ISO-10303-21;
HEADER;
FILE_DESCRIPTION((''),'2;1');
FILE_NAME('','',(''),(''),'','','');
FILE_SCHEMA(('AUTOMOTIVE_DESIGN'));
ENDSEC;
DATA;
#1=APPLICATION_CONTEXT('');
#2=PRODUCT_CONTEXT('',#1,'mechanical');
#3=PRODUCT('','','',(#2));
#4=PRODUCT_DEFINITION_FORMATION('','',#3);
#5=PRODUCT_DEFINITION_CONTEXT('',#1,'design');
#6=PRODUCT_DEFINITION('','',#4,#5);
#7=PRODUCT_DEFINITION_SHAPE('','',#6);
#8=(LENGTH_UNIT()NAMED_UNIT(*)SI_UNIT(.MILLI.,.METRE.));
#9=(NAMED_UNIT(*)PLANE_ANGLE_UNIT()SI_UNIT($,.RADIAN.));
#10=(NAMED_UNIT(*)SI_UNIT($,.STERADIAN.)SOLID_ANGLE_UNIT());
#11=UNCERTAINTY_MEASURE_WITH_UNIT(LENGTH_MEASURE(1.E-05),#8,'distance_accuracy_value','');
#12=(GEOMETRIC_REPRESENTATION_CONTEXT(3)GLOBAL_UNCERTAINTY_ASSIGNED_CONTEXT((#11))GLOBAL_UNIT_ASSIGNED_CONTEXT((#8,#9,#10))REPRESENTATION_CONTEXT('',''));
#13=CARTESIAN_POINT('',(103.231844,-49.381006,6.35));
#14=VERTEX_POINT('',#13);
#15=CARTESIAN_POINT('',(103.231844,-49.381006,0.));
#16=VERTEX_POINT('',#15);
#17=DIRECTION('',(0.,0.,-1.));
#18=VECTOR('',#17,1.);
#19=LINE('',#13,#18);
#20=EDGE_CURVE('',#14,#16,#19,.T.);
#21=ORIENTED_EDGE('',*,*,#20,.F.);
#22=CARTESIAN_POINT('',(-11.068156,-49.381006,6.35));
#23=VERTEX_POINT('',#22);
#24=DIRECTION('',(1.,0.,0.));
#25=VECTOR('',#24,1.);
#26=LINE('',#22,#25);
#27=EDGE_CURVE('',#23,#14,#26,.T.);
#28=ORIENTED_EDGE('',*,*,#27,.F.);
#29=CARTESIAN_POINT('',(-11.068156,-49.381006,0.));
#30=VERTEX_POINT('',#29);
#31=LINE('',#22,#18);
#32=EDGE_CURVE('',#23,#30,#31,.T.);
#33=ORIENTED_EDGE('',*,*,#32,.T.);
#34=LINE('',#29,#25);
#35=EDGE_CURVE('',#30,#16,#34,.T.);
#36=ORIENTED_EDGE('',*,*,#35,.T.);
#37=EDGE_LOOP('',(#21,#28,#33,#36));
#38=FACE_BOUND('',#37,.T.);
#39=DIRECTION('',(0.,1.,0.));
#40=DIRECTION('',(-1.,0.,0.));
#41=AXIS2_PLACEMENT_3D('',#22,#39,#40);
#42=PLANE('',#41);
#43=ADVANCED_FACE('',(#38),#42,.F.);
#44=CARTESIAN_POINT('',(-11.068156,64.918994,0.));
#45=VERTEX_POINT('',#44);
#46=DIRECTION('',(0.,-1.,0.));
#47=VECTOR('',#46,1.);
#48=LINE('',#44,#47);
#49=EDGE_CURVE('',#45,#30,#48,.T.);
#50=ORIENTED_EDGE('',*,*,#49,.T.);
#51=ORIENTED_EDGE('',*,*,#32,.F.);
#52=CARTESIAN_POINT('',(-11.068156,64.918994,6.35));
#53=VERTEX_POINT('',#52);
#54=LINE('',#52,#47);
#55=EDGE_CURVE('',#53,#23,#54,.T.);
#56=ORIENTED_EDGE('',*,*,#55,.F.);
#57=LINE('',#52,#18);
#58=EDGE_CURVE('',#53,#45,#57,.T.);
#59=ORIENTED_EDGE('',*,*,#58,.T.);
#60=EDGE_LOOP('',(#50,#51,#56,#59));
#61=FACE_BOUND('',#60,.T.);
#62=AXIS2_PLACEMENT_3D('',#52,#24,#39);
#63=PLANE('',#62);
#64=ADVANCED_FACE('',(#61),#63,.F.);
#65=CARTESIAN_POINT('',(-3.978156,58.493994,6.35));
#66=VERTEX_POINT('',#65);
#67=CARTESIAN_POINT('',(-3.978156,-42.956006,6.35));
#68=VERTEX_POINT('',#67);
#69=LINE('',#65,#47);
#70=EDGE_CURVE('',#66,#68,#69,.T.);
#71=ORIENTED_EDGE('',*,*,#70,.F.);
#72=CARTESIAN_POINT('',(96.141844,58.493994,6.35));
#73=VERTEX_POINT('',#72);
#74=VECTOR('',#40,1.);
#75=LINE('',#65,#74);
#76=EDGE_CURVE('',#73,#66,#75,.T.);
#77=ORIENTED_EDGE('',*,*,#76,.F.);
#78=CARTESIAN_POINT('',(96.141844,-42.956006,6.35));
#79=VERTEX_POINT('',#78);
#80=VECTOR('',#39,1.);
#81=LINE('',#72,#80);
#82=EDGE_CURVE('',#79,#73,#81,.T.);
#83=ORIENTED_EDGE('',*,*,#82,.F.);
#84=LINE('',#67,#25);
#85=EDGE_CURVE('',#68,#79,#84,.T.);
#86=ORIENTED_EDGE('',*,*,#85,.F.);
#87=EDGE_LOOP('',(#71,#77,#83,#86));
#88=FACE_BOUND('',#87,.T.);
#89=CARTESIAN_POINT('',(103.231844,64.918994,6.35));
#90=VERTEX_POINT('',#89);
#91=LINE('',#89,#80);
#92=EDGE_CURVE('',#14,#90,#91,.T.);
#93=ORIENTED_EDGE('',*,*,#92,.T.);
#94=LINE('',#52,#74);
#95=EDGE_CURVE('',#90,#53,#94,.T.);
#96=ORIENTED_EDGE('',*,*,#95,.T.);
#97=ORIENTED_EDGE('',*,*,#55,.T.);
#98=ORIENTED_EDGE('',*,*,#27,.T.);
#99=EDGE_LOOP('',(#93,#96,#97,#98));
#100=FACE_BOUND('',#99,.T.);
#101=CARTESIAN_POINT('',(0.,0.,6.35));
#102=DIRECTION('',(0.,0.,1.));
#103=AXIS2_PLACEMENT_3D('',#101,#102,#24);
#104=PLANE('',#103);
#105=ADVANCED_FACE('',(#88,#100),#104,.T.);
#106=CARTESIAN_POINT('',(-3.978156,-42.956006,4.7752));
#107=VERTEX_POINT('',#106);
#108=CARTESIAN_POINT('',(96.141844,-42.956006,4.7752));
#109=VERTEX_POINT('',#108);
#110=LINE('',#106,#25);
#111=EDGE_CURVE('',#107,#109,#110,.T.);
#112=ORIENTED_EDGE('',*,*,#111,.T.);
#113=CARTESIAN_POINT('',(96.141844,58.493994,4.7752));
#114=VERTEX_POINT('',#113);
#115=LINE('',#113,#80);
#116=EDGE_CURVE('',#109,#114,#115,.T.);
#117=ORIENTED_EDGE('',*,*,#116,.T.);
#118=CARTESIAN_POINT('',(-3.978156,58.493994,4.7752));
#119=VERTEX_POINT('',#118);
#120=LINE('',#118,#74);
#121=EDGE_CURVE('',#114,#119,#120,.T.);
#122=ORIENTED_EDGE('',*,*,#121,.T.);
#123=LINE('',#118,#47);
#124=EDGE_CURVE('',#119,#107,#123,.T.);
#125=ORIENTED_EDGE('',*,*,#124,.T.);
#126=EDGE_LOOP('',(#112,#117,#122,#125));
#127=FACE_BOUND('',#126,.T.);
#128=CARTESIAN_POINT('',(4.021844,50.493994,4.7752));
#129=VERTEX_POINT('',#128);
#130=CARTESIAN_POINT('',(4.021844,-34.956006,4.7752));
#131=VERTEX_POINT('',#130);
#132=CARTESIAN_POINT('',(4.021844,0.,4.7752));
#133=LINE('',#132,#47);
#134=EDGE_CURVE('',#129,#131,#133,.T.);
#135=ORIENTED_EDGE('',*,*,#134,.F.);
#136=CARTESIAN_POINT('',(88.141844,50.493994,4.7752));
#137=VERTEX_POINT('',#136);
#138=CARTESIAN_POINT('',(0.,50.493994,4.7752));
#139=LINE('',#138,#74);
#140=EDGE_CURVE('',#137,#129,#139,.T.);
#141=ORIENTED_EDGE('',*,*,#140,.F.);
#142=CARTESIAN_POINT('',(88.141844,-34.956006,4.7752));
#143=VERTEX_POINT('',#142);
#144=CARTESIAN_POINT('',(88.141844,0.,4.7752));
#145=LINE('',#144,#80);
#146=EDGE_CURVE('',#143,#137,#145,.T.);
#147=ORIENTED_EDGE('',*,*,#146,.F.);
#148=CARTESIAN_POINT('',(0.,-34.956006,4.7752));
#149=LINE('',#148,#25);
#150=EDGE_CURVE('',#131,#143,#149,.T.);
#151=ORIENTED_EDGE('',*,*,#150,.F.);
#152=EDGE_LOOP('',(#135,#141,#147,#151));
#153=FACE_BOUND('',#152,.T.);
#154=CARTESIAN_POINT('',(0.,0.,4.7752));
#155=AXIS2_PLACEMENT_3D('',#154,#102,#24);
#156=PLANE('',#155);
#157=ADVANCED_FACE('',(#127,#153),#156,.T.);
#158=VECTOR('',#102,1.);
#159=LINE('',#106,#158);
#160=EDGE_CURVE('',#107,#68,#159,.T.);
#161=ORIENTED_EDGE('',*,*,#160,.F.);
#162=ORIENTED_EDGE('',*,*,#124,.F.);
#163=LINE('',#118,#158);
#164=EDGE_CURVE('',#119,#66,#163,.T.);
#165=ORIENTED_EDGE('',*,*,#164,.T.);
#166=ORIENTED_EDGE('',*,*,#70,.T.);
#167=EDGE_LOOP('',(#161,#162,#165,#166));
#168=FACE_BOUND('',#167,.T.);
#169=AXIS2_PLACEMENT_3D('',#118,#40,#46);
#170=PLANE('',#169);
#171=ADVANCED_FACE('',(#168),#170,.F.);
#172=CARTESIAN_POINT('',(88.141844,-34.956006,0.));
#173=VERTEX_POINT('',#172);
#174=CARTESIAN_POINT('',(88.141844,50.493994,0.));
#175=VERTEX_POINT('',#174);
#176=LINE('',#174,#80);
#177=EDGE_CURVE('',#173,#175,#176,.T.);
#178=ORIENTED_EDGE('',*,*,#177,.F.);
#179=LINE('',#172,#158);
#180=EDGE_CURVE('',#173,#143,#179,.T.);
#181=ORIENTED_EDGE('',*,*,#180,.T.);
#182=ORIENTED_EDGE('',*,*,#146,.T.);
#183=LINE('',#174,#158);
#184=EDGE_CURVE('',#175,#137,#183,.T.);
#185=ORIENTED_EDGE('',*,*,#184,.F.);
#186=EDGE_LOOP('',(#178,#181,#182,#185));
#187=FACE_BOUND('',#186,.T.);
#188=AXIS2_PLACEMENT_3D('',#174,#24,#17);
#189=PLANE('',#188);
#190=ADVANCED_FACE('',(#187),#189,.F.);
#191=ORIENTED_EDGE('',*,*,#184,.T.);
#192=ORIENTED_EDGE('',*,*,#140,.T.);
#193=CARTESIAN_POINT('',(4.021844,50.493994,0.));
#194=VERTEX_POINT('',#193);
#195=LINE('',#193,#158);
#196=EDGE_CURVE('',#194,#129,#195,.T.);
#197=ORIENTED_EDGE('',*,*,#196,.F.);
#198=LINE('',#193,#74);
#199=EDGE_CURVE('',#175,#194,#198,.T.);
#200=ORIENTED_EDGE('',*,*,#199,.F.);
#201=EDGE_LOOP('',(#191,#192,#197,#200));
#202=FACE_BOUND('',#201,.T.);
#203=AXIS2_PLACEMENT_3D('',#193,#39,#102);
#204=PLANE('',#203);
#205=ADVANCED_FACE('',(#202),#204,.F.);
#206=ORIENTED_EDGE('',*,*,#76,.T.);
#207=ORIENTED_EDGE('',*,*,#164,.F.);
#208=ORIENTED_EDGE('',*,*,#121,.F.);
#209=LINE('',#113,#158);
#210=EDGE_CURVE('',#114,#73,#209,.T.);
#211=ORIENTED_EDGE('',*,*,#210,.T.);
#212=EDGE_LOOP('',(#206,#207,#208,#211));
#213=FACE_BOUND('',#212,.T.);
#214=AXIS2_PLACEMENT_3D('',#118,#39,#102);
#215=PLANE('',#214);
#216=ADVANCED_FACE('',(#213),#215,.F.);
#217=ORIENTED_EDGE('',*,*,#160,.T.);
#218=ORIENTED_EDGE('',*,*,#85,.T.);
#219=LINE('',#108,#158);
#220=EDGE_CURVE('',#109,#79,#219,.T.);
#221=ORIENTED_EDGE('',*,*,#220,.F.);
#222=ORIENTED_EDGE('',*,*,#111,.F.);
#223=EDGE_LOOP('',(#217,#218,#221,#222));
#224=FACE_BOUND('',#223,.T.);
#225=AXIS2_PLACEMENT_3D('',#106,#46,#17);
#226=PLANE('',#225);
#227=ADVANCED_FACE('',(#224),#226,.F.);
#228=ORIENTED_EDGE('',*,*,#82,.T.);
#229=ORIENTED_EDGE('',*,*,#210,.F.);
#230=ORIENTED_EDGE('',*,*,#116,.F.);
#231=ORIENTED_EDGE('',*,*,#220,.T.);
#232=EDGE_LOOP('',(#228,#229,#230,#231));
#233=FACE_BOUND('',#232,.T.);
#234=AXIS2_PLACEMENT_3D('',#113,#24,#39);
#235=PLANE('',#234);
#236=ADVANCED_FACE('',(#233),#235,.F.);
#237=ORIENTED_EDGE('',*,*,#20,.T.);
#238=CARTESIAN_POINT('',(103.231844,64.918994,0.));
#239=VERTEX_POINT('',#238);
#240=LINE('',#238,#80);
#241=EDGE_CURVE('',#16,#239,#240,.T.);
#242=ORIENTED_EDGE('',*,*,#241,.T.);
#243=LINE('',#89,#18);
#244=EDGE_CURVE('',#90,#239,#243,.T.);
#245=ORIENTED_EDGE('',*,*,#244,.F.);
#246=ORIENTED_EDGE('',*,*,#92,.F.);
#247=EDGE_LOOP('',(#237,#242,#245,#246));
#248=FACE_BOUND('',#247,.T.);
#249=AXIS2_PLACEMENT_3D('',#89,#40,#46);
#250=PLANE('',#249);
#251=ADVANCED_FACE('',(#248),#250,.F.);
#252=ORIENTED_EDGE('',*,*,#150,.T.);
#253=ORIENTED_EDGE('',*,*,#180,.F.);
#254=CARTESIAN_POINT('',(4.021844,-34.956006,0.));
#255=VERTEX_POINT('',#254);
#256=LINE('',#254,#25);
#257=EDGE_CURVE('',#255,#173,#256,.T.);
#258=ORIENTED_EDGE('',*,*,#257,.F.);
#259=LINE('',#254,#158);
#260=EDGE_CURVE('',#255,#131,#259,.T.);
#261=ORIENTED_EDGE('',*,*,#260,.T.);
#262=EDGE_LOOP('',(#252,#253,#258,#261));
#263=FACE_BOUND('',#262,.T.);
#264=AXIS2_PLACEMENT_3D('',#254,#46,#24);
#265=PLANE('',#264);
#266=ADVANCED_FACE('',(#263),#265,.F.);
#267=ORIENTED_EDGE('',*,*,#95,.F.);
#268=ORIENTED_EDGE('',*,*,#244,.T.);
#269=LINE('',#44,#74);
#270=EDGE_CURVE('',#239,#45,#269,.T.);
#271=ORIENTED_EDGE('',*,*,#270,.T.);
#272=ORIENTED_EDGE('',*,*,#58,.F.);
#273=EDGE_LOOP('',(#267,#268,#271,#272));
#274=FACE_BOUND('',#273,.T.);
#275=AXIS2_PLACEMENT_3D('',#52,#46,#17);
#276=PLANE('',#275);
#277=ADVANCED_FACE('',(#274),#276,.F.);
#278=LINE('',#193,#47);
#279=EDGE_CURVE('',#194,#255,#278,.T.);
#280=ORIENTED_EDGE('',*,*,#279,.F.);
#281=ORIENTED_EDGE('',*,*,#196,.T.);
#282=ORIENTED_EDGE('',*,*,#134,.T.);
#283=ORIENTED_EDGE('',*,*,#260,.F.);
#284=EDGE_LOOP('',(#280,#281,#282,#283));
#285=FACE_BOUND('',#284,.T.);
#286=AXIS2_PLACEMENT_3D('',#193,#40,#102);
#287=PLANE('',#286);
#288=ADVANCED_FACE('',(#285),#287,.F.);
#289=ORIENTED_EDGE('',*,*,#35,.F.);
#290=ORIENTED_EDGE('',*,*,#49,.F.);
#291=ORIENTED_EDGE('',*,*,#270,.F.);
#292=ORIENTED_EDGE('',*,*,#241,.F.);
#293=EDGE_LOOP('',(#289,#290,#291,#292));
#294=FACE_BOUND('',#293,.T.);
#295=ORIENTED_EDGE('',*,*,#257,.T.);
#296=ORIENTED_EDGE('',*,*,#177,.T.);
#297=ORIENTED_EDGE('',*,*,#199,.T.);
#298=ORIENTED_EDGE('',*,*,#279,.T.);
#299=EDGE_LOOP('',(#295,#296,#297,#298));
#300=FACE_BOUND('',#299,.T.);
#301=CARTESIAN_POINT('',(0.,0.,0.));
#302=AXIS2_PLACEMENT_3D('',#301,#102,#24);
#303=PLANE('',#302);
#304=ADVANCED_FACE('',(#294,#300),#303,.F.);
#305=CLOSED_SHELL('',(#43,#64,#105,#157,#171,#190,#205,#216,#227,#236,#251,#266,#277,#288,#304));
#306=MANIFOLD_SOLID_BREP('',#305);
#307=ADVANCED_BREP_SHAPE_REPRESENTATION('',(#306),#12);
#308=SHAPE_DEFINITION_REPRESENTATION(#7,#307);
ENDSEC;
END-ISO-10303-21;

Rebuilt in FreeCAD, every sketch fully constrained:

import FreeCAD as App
import Part
import Sketcher
Q = App.Units.Quantity


def add_polygon(sketch, points):
    """Adds a closed chain of lines whose ends are joined by coincident constraints."""
    first, n = sketch.GeometryCount, len(points)
    for a, b in zip(points, points[1:] + points[:1]):
        sketch.addGeometry(Part.LineSegment(App.Vector(*a, 0), App.Vector(*b, 0)), False)
    for i in range(n):
        sketch.addConstraint(Sketcher.Constraint("Coincident", first + i, 2, first + (i + 1) % n, 1))

doc = App.newDocument("Part")
body = doc.addObject("PartDesign::Body", "Body")

# Sketch on XY plane
sketch1 = body.newObject("Sketcher::SketchObject", "Sketch")
sketch1.AttachmentSupport = (doc.getObject("XY_Plane"), [""])
sketch1.MapMode = "FlatFace"
add_polygon(sketch1, [(-11, 65), (-11, -49), (103, -49), (103, 65)])  # lines 0-3
sketch1.addConstraint([
    Sketcher.Constraint("Vertical", 0),
    Sketcher.Constraint("Horizontal", 1),
    Sketcher.Constraint("Vertical", 2),
    Sketcher.Constraint("Horizontal", 3),
    Sketcher.Constraint("Equal", 3, 0),
    Sketcher.Constraint("DistanceX", 1, 1, 1, 2, Q("4.5 in")),
    Sketcher.Constraint("DistanceX", 0, 2, -1, 1, Q("11.068156 mm")),
    Sketcher.Constraint("DistanceY", 0, 2, -1, 1, Q("49.381006 mm")),
])
pad1 = body.newObject("PartDesign::Pad", "Pad")
pad1.Profile = sketch1
pad1.Length = Q("0.25 in")

# Sketch on XY plane
sketch2 = body.newObject("Sketcher::SketchObject", "Sketch001")
sketch2.AttachmentSupport = (doc.getObject("XY_Plane"), [""])
sketch2.MapMode = "FlatFace"
sketch2.AttachmentOffset = App.Placement(App.Vector(0, 0, 0.25 * 25.4), App.Rotation())
add_polygon(sketch2, [(-4, 58), (-4, -43), (96, -43), (96, 58)])  # lines 0-3
sketch2.addConstraint([
    Sketcher.Constraint("Vertical", 0),
    Sketcher.Constraint("Horizontal", 1),
    Sketcher.Constraint("Vertical", 2),
    Sketcher.Constraint("Horizontal", 3),
    Sketcher.Constraint("DistanceX", 1, 1, 1, 2, Q("100.12 mm")),
    Sketcher.Constraint("DistanceY", 0, 2, 0, 1, Q("101.45 mm")),
    Sketcher.Constraint("DistanceX", 0, 2, -1, 1, Q("3.978156 mm")),
    Sketcher.Constraint("DistanceY", 0, 2, -1, 1, Q("42.956006 mm")),
])
pocket1 = body.newObject("PartDesign::Pocket", "Pocket")
pocket1.Profile = sketch2
pocket1.Length = Q("0.062 in")

# Sketch on XY plane
sketch3 = body.newObject("Sketcher::SketchObject", "Sketch002")
sketch3.AttachmentSupport = (doc.getObject("XY_Plane"), [""])
sketch3.MapMode = "FlatFace"
sketch3.AttachmentOffset = App.Placement(App.Vector(0, 0, 0.188 * 25.4), App.Rotation())
add_polygon(sketch3, [(4, 50), (4, -35), (88, -35), (88, 50)])  # lines 0-3
sketch3.addConstraint([
    Sketcher.Constraint("Vertical", 0),
    Sketcher.Constraint("Horizontal", 1),
    Sketcher.Constraint("Vertical", 2),
    Sketcher.Constraint("Horizontal", 3),
    Sketcher.Constraint("DistanceX", 1, 1, 1, 2, Q("84.12 mm")),
    Sketcher.Constraint("DistanceY", 0, 2, 0, 1, Q("85.45 mm")),
    Sketcher.Constraint("DistanceX", -1, 1, 0, 2, Q("4.021844 mm")),
    Sketcher.Constraint("DistanceY", 0, 2, -1, 1, Q("34.956006 mm")),
])
pocket2 = body.newObject("PartDesign::Pocket", "Pocket001")
pocket2.Profile = sketch3
pocket2.Type = "ThroughAll"
pocket2.Midplane = True

doc.recompute()
